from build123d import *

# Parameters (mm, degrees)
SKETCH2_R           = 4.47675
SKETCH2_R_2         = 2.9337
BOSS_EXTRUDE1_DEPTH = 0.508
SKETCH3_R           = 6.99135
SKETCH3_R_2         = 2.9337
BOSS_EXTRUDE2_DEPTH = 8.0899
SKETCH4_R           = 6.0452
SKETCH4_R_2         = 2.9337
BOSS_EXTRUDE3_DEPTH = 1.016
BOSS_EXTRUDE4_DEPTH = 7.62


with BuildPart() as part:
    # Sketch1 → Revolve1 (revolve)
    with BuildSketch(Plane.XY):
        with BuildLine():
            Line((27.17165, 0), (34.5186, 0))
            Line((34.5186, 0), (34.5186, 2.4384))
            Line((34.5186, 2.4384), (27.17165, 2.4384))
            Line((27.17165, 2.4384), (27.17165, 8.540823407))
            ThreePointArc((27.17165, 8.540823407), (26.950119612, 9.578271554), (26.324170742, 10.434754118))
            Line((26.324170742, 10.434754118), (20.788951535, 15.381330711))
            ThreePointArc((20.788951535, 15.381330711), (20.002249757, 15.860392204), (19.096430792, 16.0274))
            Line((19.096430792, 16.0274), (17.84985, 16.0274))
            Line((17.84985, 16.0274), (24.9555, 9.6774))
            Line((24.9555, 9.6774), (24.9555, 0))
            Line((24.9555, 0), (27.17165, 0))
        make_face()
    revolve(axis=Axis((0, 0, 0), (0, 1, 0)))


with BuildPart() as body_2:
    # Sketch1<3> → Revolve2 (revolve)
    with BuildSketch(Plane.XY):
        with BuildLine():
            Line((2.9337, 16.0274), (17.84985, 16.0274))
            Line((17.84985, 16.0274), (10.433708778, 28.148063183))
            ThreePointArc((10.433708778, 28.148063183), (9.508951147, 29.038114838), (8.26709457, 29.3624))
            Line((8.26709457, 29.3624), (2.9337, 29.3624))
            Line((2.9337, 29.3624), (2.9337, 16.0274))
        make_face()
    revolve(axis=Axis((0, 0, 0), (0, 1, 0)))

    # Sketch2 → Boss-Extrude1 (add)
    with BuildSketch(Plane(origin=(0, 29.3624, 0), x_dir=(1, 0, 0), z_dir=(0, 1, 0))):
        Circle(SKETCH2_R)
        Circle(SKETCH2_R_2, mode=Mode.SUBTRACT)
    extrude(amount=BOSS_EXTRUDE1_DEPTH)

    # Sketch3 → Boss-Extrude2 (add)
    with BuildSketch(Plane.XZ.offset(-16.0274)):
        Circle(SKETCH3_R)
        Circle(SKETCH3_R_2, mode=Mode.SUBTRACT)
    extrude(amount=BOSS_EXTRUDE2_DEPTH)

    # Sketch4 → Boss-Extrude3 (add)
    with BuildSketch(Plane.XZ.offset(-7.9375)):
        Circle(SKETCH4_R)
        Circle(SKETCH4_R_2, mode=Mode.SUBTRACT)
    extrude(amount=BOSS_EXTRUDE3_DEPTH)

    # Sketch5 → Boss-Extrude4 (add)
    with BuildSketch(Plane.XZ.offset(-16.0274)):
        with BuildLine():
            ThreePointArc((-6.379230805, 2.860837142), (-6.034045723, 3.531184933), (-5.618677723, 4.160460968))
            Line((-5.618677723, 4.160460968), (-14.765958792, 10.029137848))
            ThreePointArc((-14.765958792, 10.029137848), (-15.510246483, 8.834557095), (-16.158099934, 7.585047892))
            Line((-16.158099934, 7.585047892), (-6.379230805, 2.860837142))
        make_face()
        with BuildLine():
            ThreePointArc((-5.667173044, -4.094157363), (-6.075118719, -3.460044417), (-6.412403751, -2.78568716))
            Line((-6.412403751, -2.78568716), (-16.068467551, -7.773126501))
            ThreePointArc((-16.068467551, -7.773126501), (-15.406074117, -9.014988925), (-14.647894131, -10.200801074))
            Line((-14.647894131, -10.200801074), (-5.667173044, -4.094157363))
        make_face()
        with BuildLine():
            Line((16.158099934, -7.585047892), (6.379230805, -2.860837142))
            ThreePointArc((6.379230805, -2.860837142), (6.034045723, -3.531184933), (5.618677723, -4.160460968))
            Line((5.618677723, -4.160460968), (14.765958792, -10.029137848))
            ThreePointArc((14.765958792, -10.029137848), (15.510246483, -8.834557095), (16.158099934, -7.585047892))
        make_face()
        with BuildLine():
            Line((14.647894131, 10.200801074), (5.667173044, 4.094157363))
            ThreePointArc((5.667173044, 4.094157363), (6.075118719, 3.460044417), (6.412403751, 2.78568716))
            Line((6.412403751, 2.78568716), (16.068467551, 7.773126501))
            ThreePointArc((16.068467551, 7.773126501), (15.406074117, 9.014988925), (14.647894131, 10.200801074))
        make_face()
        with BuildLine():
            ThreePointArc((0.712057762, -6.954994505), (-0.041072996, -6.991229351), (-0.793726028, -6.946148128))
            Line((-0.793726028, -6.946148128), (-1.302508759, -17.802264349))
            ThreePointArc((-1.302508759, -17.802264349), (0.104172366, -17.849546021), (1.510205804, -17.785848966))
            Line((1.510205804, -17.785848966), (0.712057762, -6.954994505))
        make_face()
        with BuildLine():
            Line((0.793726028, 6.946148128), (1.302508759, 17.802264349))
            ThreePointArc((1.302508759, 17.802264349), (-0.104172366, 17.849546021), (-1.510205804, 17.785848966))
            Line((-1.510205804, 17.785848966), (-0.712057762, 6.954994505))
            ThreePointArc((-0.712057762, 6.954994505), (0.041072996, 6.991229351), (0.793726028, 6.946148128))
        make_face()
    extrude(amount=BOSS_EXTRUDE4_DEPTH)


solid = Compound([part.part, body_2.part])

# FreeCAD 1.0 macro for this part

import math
import FreeCAD as App
import Part
import Sketcher
Q = App.Units.Quantity

doc = App.newDocument("Part")
body = doc.addObject("PartDesign::Body", "Body")

sketch1 = doc.addObject("Sketcher::SketchObject", "Sketch")
body.addObject(sketch1)
sketch1.AttachmentSupport = (doc.XY_Plane, [""])
sketch1.MapMode = "FlatFace"
sketch1.addGeometry([
    Part.LineSegment(App.Vector(34.5186, 0, 0), App.Vector(34.5186, 2.4384, 0)),
    Part.LineSegment(App.Vector(34.5186, 2.4384, 0), App.Vector(27.17165, 2.4384, 0)),
    Part.LineSegment(App.Vector(27.17165, 2.4384, 0), App.Vector(27.17165, 8.540823, 0)),
    Part.ArcOfCircle(Part.Circle(App.Vector(24.63165, 8.540823, 0), App.Vector(0, 0, 1), 2.54), math.radians(0), math.radians(48.214273)),
    Part.LineSegment(App.Vector(26.324171, 10.434754, 0), App.Vector(20.788952, 15.381331, 0)),
    Part.ArcOfCircle(Part.Circle(App.Vector(19.096431, 13.4874, 0), App.Vector(0, 0, 1), 2.54), math.radians(48.214273), math.radians(90)),
    Part.LineSegment(App.Vector(19.096431, 16.0274, 0), App.Vector(17.84985, 16.0274, 0)),
    Part.LineSegment(App.Vector(17.84985, 16.0274, 0), App.Vector(24.9555, 9.6774, 0)),
    Part.LineSegment(App.Vector(24.9555, 9.6774, 0), App.Vector(24.9555, 0, 0)),
    Part.LineSegment(App.Vector(24.9555, 0, 0), App.Vector(34.5186, 0, 0)),
], False)
sketch1.addConstraint([
    Sketcher.Constraint("Coincident", 0, 2, 1, 1),
    Sketcher.Constraint("Coincident", 1, 2, 2, 1),
    Sketcher.Constraint("Tangent", 2, 2, 3, 1),
    Sketcher.Constraint("Tangent", 3, 2, 4, 1),
    Sketcher.Constraint("Tangent", 4, 2, 5, 1),
    Sketcher.Constraint("Tangent", 5, 2, 6, 1),
    Sketcher.Constraint("Coincident", 6, 2, 7, 1),
    Sketcher.Constraint("Coincident", 7, 2, 8, 1),
    Sketcher.Constraint("Coincident", 8, 2, 9, 1),
    Sketcher.Constraint("Coincident", 9, 2, 0, 1),
    Sketcher.Constraint("Vertical", 0),
    Sketcher.Constraint("Horizontal", 1),
    Sketcher.Constraint("Vertical", 2),
    Sketcher.Constraint("Horizontal", 6),
    Sketcher.Constraint("Vertical", 8),
    Sketcher.Constraint("Horizontal", 9),
    Sketcher.Constraint("Equal", 3, 5),
    Sketcher.Constraint("PointOnObject", 8, 2, -1),
    Sketcher.Constraint("Parallel", 4, 7),
    Sketcher.Constraint("Radius", 3, Q("0.1 in")),
    Sketcher.Constraint("DistanceY", 0, 1, 0, 2, Q("0.096 in")),
    Sketcher.Constraint("DistanceY", 8, 2, 8, 1, Q("0.381 in")),
    Sketcher.Constraint("DistanceY", 7, 2, 5, 3, Q("0.15 in")),
    Sketcher.Constraint("DistanceX", 9, 1, 9, 2, Q("0.3765 in")),
    Sketcher.Constraint("DistanceX", -1, 1, 0, 2, Q("1.359 in")),
    Sketcher.Constraint("DistanceX", 6, 2, 3, 3, Q("0.267 in")),
    Sketcher.Constraint("DistanceX", 1, 2, 1, 1, Q("7.34695 mm")),
    Sketcher.Constraint("DistanceX", 6, 2, 6, 1, Q("1.246581 mm")),
])
revolution = doc.addObject("PartDesign::Revolution", "Revolution")
body.addObject(revolution)
revolution.Profile = sketch1
revolution.ReferenceAxis = (sketch1, ["V_Axis"])
revolution.Angle = 360
body2 = doc.addObject("PartDesign::Body", "Body001")

sketch2 = doc.addObject("Sketcher::SketchObject", "Sketch001")
body2.addObject(sketch2)
sketch2.AttachmentSupport = (doc.getObject("XY_Plane001"), [""])
sketch2.MapMode = "FlatFace"
sketch2.addGeometry([
    Part.LineSegment(App.Vector(2.9337, 16.0274, 0), App.Vector(17.84985, 16.0274, 0)),
    Part.LineSegment(App.Vector(17.84985, 16.0274, 0), App.Vector(10.433709, 28.148063, 0)),
    Part.ArcOfCircle(Part.Circle(App.Vector(8.267095, 26.8224, 0), App.Vector(0, 0, 1), 2.54), math.radians(31.46077), math.radians(90)),
    Part.LineSegment(App.Vector(8.267095, 29.3624, 0), App.Vector(2.9337, 29.3624, 0)),
    Part.LineSegment(App.Vector(2.9337, 29.3624, 0), App.Vector(2.9337, 16.0274, 0)),
], False)
sketch2.addConstraint([
    Sketcher.Constraint("Coincident", 0, 2, 1, 1),
    Sketcher.Constraint("Tangent", 1, 2, 2, 1),
    Sketcher.Constraint("Tangent", 2, 2, 3, 1),
    Sketcher.Constraint("Coincident", 3, 2, 4, 1),
    Sketcher.Constraint("Coincident", 4, 2, 0, 1),
    Sketcher.Constraint("Horizontal", 0),
    Sketcher.Constraint("Horizontal", 3),
    Sketcher.Constraint("Vertical", 4),
    Sketcher.Constraint("Radius", 2, Q("0.1 in")),
    Sketcher.Constraint("DistanceY", 4, 2, 4, 1, Q("0.525 in")),
    Sketcher.Constraint("DistanceY", -1, 1, 2, 3, Q("1.056 in")),
    Sketcher.Constraint("DistanceX", -1, 1, 3, 2, Q("0.1155 in")),
    Sketcher.Constraint("DistanceX", 0, 1, 0, 2, Q("14.91615 mm")),
    Sketcher.Constraint("Distance", 1, Q("14.209491 mm")),
])
revolution2 = doc.addObject("PartDesign::Revolution", "Revolution001")
body2.addObject(revolution2)
revolution2.Profile = sketch2
revolution2.ReferenceAxis = (sketch2, ["V_Axis"])
revolution2.Angle = 360

sketch3 = doc.addObject("Sketcher::SketchObject", "Sketch002")
body2.addObject(sketch3)
sketch3.AttachmentSupport = (doc.getObject("XZ_Plane001"), [""])
sketch3.MapMode = "FlatFace"
sketch3.AttachmentOffset = App.Placement(App.Vector(0, 0, -1.156 * 25.4), App.Rotation())
sketch3.addGeometry([
    Part.Circle(App.Vector(0, 0, 0), App.Vector(0, 0, 1), 4.47675),
    Part.Circle(App.Vector(0, 0, 0), App.Vector(0, 0, 1), 2.9337),
], False)
sketch3.addConstraint([
    Sketcher.Constraint("Coincident", 0, 3, -1, 1),
    Sketcher.Constraint("Coincident", 1, 3, -1, 1),
    Sketcher.Constraint("Diameter", 1, Q("0.231 in")),
    Sketcher.Constraint("Diameter", 0, Q("0.3525 in")),
])
pad1 = doc.addObject("PartDesign::Pad", "Pad")
body2.addObject(pad1)
pad1.Profile = sketch3
pad1.Length = Q("0.02 in")
pad1.Reversed = True

sketch4 = doc.addObject("Sketcher::SketchObject", "Sketch003")
body2.addObject(sketch4)
sketch4.AttachmentSupport = (doc.getObject("XZ_Plane001"), [""])
sketch4.MapMode = "FlatFace"
sketch4.AttachmentOffset = App.Placement(App.Vector(0, 0, -0.631 * 25.4), App.Rotation())
sketch4.addGeometry([
    Part.Circle(App.Vector(0, 0, 0), App.Vector(0, 0, 1), 6.99135),
    Part.Circle(App.Vector(0, 0, 0), App.Vector(0, 0, 1), 2.9337),
], False)
sketch4.addConstraint([
    Sketcher.Constraint("Coincident", 0, 3, -1, 1),
    Sketcher.Constraint("Coincident", 1, 3, -1, 1),
    Sketcher.Constraint("Diameter", 1, Q("0.231 in")),
    Sketcher.Constraint("Diameter", 0, Q("0.5505 in")),
])
pad2 = doc.addObject("PartDesign::Pad", "Pad001")
body2.addObject(pad2)
pad2.Profile = sketch4
pad2.Length = Q("0.3185 in")

sketch5 = doc.addObject("Sketcher::SketchObject", "Sketch004")
body2.addObject(sketch5)
sketch5.AttachmentSupport = (doc.getObject("XZ_Plane001"), [""])
sketch5.MapMode = "FlatFace"
sketch5.AttachmentOffset = App.Placement(App.Vector(0, 0, -0.3125 * 25.4), App.Rotation())
sketch5.addGeometry([
    Part.Circle(App.Vector(0, 0, 0), App.Vector(0, 0, 1), 6.0452),
    Part.Circle(App.Vector(0, 0, 0), App.Vector(0, 0, 1), 2.9337),
], False)
sketch5.addConstraint([
    Sketcher.Constraint("Coincident", 0, 3, -1, 1),
    Sketcher.Constraint("Coincident", 1, 3, -1, 1),
    Sketcher.Constraint("Diameter", 0, Q("0.476 in")),
    Sketcher.Constraint("Diameter", 1, Q("0.231 in")),
])
pad3 = doc.addObject("PartDesign::Pad", "Pad002")
body2.addObject(pad3)
pad3.Profile = sketch5
pad3.Length = Q("0.04 in")

sketch6 = doc.addObject("Sketcher::SketchObject", "Sketch005")
body2.addObject(sketch6)
sketch6.AttachmentSupport = (doc.getObject("XZ_Plane001"), [""])
sketch6.MapMode = "FlatFace"
sketch6.AttachmentOffset = App.Placement(App.Vector(0, 0, -0.631 * 25.4), App.Rotation())
sketch6.addGeometry([
    Part.ArcOfCircle(Part.Circle(App.Vector(0, 0, 0), App.Vector(0, 0, 1), 6.99135), math.radians(143.481171), math.radians(155.845619)),
    Part.LineSegment(App.Vector(-5.618678, 4.160461, 0), App.Vector(-14.765959, 10.029138, 0)),
    Part.ArcOfCircle(Part.Circle(App.Vector(0, 0, 0), App.Vector(0, 0, 1), 17.84985), math.radians(145.815391), math.radians(154.853373)),
    Part.LineSegment(App.Vector(-16.1581, 7.585048, 0), App.Vector(-6.379231, 2.860837, 0)),
    Part.ArcOfCircle(Part.Circle(App.Vector(0, 0, 0), App.Vector(0, 0, 1), 6.99135), math.radians(-156.518829), math.radians(-144.154381)),
    Part.LineSegment(App.Vector(-6.412404, -2.785687, 0), App.Vector(-16.068468, -7.773127, 0)),
    Part.ArcOfCircle(Part.Circle(App.Vector(0, 0, 0), App.Vector(0, 0, 1), 17.84985), math.radians(-154.184609), math.radians(-145.146627)),
    Part.LineSegment(App.Vector(-14.647894, -10.200801, 0), App.Vector(-5.667173, -4.094157, 0)),
    Part.LineSegment(App.Vector(16.1581, -7.585048, 0), App.Vector(6.379231, -2.860837, 0)),
    Part.ArcOfCircle(Part.Circle(App.Vector(0, 0, 0), App.Vector(0, 0, 1), 6.99135), math.radians(-36.518829), math.radians(-24.154381)),
    Part.LineSegment(App.Vector(5.618678, -4.160461, 0), App.Vector(14.765959, -10.029138, 0)),
    Part.ArcOfCircle(Part.Circle(App.Vector(0, 0, 0), App.Vector(0, 0, 1), 17.84985), math.radians(-34.184609), math.radians(-25.146627)),
    Part.LineSegment(App.Vector(14.647894, 10.200801, 0), App.Vector(5.667173, 4.094157, 0)),
    Part.ArcOfCircle(Part.Circle(App.Vector(0, 0, 0), App.Vector(0, 0, 1), 6.99135), math.radians(23.481171), math.radians(35.845619)),
    Part.LineSegment(App.Vector(6.412404, 2.785687, 0), App.Vector(16.068468, 7.773127, 0)),
    Part.ArcOfCircle(Part.Circle(App.Vector(0, 0, 0), App.Vector(0, 0, 1), 17.84985), math.radians(25.815391), math.radians(34.853373)),
    Part.ArcOfCircle(Part.Circle(App.Vector(0, 0, 0), App.Vector(0, 0, 1), 6.99135), math.radians(-96.518829), math.radians(-84.154381)),
    Part.LineSegment(App.Vector(-0.793726, -6.946148, 0), App.Vector(-1.302509, -17.802264, 0)),
    Part.ArcOfCircle(Part.Circle(App.Vector(0, 0, 0), App.Vector(0, 0, 1), 17.84985), math.radians(-94.184609), math.radians(-85.146627)),
    Part.LineSegment(App.Vector(1.510206, -17.785849, 0), App.Vector(0.712058, -6.954995, 0)),
    Part.LineSegment(App.Vector(0.793726, 6.946148, 0), App.Vector(1.302509, 17.802264, 0)),
    Part.ArcOfCircle(Part.Circle(App.Vector(0, 0, 0), App.Vector(0, 0, 1), 17.84985), math.radians(85.815391), math.radians(94.853373)),
    Part.LineSegment(App.Vector(-1.510206, 17.785849, 0), App.Vector(-0.712058, 6.954995, 0)),
    Part.ArcOfCircle(Part.Circle(App.Vector(0, 0, 0), App.Vector(0, 0, 1), 6.99135), math.radians(83.481171), math.radians(95.845619)),
], False)
sketch6.addConstraint([
    Sketcher.Constraint("Coincident", 0, 1, 1, 1),
    Sketcher.Constraint("Coincident", 1, 2, 2, 1),
    Sketcher.Constraint("Coincident", 2, 2, 3, 1),
    Sketcher.Constraint("Coincident", 3, 2, 0, 2),
    Sketcher.Constraint("Coincident", 4, 1, 5, 1),
    Sketcher.Constraint("Coincident", 5, 2, 6, 1),
    Sketcher.Constraint("Coincident", 6, 2, 7, 1),
    Sketcher.Constraint("Coincident", 7, 2, 4, 2),
    Sketcher.Constraint("Coincident", 8, 2, 9, 2),
    Sketcher.Constraint("Coincident", 9, 1, 10, 1),
    Sketcher.Constraint("Coincident", 10, 2, 11, 1),
    Sketcher.Constraint("Coincident", 11, 2, 8, 1),
    Sketcher.Constraint("Coincident", 12, 2, 13, 2),
    Sketcher.Constraint("Coincident", 13, 1, 14, 1),
    Sketcher.Constraint("Coincident", 14, 2, 15, 1),
    Sketcher.Constraint("Coincident", 15, 2, 12, 1),
    Sketcher.Constraint("Coincident", 16, 1, 17, 1),
    Sketcher.Constraint("Coincident", 17, 2, 18, 1),
    Sketcher.Constraint("Coincident", 18, 2, 19, 1),
    Sketcher.Constraint("Coincident", 19, 2, 16, 2),
    Sketcher.Constraint("Coincident", 20, 2, 21, 1),
    Sketcher.Constraint("Coincident", 21, 2, 22, 1),
    Sketcher.Constraint("Coincident", 22, 2, 23, 2),
    Sketcher.Constraint("Coincident", 23, 1, 20, 1),
    Sketcher.Constraint("Coincident", 0, 3, -1, 1),
    Sketcher.Constraint("Coincident", 2, 3, -1, 1),
    Sketcher.Constraint("Coincident", 4, 3, -1, 1),
    Sketcher.Constraint("Coincident", 6, 3, -1, 1),
    Sketcher.Constraint("Coincident", 9, 3, -1, 1),
    Sketcher.Constraint("Coincident", 11, 3, -1, 1),
    Sketcher.Constraint("Coincident", 13, 3, -1, 1),
    Sketcher.Constraint("Coincident", 15, 3, -1, 1),
    Sketcher.Constraint("Coincident", 16, 3, -1, 1),
    Sketcher.Constraint("Coincident", 18, 3, -1, 1),
    Sketcher.Constraint("Coincident", 21, 3, -1, 1),
    Sketcher.Constraint("Coincident", 23, 3, -1, 1),
    Sketcher.Constraint("Equal", 0, 4),
    Sketcher.Constraint("Equal", 2, 6),
    Sketcher.Constraint("Equal", 4, 9),
    Sketcher.Constraint("Equal", 6, 11),
    Sketcher.Constraint("Equal", 9, 13),
    Sketcher.Constraint("Equal", 11, 15),
    Sketcher.Constraint("Equal", 13, 16),
    Sketcher.Constraint("Equal", 15, 18),
    Sketcher.Constraint("Equal", 18, 21),
    Sketcher.Constraint("Equal", 16, 23),
    Sketcher.Constraint("Parallel", 3, 8),
    Sketcher.Constraint("Parallel", 1, 10),
    Sketcher.Constraint("Parallel", 7, 12),
    Sketcher.Constraint("Parallel", 5, 14),
    Sketcher.Constraint("Parallel", 17, 20),
    Sketcher.Constraint("Parallel", 19, 22),
    Sketcher.Constraint("Equal", 1, 5),
    Sketcher.Constraint("Equal", 3, 7),
    Sketcher.Constraint("Equal", 7, 8),
    Sketcher.Constraint("Equal", 5, 10),
    Sketcher.Constraint("Equal", 8, 12),
    Sketcher.Constraint("Equal", 10, 14),
    Sketcher.Constraint("Equal", 14, 17),
    Sketcher.Constraint("Equal", 12, 19),
    Sketcher.Constraint("Equal", 17, 20),
    Sketcher.Constraint("Equal", 19, 22),
    Sketcher.Constraint("Radius", 0, Q("6.99135 mm")),
    Sketcher.Constraint("Radius", 2, Q("17.84985 mm")),
    Sketcher.Constraint("DistanceX", 2, 2, -1, 1, Q("16.1581 mm")),
    Sketcher.Constraint("DistanceY", 6, 2, -1, 1, Q("10.200801 mm")),
    Sketcher.Constraint("DistanceY", 10, 2, 8, 2, Q("7.168301 mm")),
    Sketcher.Constraint("DistanceY", 18, 2, 16, 1, Q("10.839701 mm")),
    Sketcher.Constraint("Distance", 1, Q("10.868032 mm")),
    Sketcher.Constraint("DistanceY", -1, 1, 0, 1, Q("4.160461 mm")),
    Sketcher.Constraint("DistanceY", 16, 1, -1, 1, Q("6.946148 mm")),
    Sketcher.Constraint("DistanceY", 5, 2, 4, 1, Q("4.987439 mm")),
])
pad4 = doc.addObject("PartDesign::Pad", "Pad003")
body2.addObject(pad4)
pad4.Profile = sketch6
pad4.Length = Q("0.3 in")

doc.recompute()
